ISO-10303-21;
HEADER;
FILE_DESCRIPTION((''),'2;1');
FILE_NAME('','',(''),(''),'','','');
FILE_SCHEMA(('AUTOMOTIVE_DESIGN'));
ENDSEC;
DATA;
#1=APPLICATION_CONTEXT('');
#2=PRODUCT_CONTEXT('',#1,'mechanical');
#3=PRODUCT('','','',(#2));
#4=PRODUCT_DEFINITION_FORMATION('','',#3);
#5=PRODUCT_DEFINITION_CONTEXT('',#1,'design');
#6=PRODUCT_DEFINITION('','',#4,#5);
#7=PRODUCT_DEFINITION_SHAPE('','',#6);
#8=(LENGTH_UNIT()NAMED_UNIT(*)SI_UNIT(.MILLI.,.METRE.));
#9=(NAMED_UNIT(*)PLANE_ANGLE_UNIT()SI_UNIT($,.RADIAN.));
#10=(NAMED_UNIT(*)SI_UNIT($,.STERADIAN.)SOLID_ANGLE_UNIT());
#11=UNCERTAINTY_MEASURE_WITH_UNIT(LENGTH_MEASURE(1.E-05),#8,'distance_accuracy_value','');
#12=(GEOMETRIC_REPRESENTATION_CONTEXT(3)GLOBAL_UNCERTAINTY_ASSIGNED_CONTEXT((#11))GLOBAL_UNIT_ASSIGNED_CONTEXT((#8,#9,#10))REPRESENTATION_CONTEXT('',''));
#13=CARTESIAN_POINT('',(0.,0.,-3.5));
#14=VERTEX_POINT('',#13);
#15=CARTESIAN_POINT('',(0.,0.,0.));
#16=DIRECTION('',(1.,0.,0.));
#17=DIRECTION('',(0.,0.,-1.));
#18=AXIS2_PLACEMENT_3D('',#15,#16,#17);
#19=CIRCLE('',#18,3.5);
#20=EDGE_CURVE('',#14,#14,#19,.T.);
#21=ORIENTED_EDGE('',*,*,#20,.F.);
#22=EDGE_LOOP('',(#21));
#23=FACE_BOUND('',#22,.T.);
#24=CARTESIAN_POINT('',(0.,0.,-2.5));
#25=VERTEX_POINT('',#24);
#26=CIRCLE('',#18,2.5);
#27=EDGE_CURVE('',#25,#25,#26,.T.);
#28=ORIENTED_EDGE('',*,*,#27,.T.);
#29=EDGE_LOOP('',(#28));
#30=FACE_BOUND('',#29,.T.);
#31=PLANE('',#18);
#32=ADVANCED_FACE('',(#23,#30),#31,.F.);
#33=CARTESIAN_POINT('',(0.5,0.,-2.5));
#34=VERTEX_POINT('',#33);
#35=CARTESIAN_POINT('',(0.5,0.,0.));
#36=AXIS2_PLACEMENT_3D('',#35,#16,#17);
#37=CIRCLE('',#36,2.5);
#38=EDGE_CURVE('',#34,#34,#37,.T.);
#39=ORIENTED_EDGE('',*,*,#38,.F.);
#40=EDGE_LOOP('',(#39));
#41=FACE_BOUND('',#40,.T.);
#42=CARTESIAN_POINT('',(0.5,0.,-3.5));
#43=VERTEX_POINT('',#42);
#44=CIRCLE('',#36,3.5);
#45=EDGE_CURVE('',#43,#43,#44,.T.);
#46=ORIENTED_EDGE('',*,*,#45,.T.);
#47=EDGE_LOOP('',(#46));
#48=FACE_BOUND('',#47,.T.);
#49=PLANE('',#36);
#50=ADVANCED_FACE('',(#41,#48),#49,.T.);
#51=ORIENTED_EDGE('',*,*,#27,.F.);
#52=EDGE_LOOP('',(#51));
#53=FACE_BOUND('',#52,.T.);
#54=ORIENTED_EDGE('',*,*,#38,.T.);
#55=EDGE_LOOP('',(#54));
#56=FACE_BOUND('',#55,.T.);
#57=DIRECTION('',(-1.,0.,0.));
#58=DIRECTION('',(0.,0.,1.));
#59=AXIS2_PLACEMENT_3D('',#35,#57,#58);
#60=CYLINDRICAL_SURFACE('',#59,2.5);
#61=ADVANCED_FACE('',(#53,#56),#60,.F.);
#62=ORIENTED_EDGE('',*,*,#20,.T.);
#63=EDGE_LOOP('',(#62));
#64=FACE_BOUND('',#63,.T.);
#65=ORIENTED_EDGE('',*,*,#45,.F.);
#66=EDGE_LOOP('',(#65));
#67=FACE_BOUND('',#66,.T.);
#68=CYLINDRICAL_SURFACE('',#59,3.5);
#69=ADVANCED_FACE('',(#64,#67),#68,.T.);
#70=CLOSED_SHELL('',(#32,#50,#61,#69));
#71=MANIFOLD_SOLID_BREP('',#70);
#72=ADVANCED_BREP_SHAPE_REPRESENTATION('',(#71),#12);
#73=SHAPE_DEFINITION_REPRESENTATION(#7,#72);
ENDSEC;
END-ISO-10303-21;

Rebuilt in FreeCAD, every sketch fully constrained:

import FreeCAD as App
import Part
import Sketcher

V = App.Vector
Q = App.Units.Quantity

doc = App.newDocument("Part")
body = doc.addObject("PartDesign::Body", "Body")

# Sketch on YZ plane
sketch1 = body.newObject("Sketcher::SketchObject", "Sketch")
sketch1.AttachmentSupport = (doc.getObject("YZ_Plane"), [""])
sketch1.MapMode = "FlatFace"
sketch1.addGeometry(Part.Circle(V(0, 0, 0), V(0, 0, 1), 3.5), False)
sketch1.addGeometry(Part.Circle(V(0, 0, 0), V(0, 0, 1), 2.5), False)
sketch1.addConstraint(Sketcher.Constraint("Coincident", 0, 3, -1, 1))
sketch1.addConstraint(Sketcher.Constraint("Coincident", 1, 3, -1, 1))
sketch1.addConstraint(Sketcher.Constraint("Diameter", 0, Q("7 mm")))
sketch1.addConstraint(Sketcher.Constraint("Diameter", 1, Q("5 mm")))
pad1 = body.newObject("PartDesign::Pad", "Pad")
pad1.Profile = sketch1
pad1.Length = 0.5

doc.recompute()
